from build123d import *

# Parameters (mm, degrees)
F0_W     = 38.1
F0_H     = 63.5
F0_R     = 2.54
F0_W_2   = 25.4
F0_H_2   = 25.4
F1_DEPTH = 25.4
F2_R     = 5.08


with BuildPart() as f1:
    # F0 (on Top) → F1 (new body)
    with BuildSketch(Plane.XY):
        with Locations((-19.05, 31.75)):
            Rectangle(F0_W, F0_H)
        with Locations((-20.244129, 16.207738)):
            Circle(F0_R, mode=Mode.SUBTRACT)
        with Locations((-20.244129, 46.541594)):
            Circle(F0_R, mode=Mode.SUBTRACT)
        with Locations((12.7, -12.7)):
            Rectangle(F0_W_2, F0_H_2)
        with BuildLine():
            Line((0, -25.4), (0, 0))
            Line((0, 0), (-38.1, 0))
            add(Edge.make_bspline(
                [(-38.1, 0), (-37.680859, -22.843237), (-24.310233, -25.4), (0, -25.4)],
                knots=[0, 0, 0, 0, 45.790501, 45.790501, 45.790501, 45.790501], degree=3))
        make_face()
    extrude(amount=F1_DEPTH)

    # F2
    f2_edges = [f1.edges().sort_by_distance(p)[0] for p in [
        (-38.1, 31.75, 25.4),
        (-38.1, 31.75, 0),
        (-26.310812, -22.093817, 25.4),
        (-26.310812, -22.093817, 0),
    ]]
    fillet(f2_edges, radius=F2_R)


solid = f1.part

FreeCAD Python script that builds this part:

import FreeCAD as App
import Part
import Sketcher

V = App.Vector
Q = App.Units.Quantity


def edges_at(feature, points):
    """Names of the edges that pass closest to the given points."""
    edges = feature.Shape.Edges
    near = lambda p: min(range(len(edges)), key=lambda i: edges[i].distToShape(Part.Vertex(*p))[0])
    return sorted({f"Edge{near(p) + 1}" for p in points})

doc = App.newDocument("Part")
params = doc.addObject("Spreadsheet::Sheet", "Params")
for row, (alias, value) in enumerate([
    ("sketch1_diameter", "0.2 in"),
    ("sketch1_height", "2.5 in"),
    ("pad1_length", "1 in"),
    ("fillet_radius", "0.2 in"),
], start=1):
    params.set(f"A{row}", alias)
    params.set(f"B{row}", "=" + value)
    params.setAlias(f"B{row}", alias)

body = doc.addObject("PartDesign::Body", "Body")

# Sketch on XY plane
sketch1 = body.newObject("Sketcher::SketchObject", "Sketch")
sketch1.AttachmentSupport = (doc.getObject("XY_Plane"), [""])
sketch1.MapMode = "FlatFace"
sketch1.addGeometry([
    Part.LineSegment(V(-38.1, 63.5, 0), V(-38.1, 0, 0)),  # 0
    Part.BSplineCurve([V(-38.1, 0, 0), V(-37.680859, -22.843237, 0), V(-24.310233, -25.4, 0), V(0, -25.4, 0)], [4, 4], [0, 45.790501], False, 3, [1, 1, 1, 1], False),  # 1
    Part.LineSegment(V(0, -25.4, 0), V(25.4, -25.4, 0)),  # 2
    Part.LineSegment(V(25.4, -25.4, 0), V(25.4, 0, 0)),  # 3
    Part.LineSegment(V(25.4, 0, 0), V(0, 0, 0)),  # 4
    Part.LineSegment(V(0, 0, 0), V(0, 63.5, 0)),  # 5
    Part.LineSegment(V(0, 63.5, 0), V(-38.1, 63.5, 0)),  # 6
    Part.Circle(V(-20.244129, 16.207738, 0), V(0, 0, 1), 2.54),  # 7
    Part.Circle(V(-20.244129, 46.541594, 0), V(0, 0, 1), 2.54),  # 8
], False)
sketch1.addConstraint([
    Sketcher.Constraint("Block", 1),
    Sketcher.Constraint("Coincident", 0, 2, 1, 1),
    Sketcher.Constraint("Coincident", 1, 2, 2, 1),
    Sketcher.Constraint("Coincident", 2, 2, 3, 1),
    Sketcher.Constraint("Coincident", 3, 2, 4, 1),
    Sketcher.Constraint("Coincident", 4, 2, 5, 1),
    Sketcher.Constraint("Coincident", 5, 2, 6, 1),
    Sketcher.Constraint("Coincident", 6, 2, 0, 1),
    Sketcher.Constraint("Vertical", 0),
    Sketcher.Constraint("Horizontal", 2),
    Sketcher.Constraint("Vertical", 3),
    Sketcher.Constraint("Horizontal", 4),
    Sketcher.Constraint("Vertical", 5),
    Sketcher.Constraint("Horizontal", 6),
    Sketcher.Constraint("Coincident", 4, 2, -1, 1),
    Sketcher.Constraint("Equal", 7, 8),
    Sketcher.Constraint("Vertical", 7, 3, 8, 3),
    Sketcher.Constraint("Equal", 4, 3),
    Sketcher.Constraint("Diameter", 7, Q("0.2 in")),
    Sketcher.Constraint("DistanceY", 0, 2, 0, 1, Q("2.5 in")),
    Sketcher.Constraint("DistanceY", -1, 1, 7, 3, Q("0.6380999 in")),
    Sketcher.Constraint("DistanceX", 7, 3, -1, 1, 20.244129),
    Sketcher.Constraint("DistanceY", -1, 1, 8, 3, 46.541594),
])
sketch1.setExpression("Constraints[18]", "Params.sketch1_diameter")
sketch1.setExpression("Constraints[19]", "Params.sketch1_height")
pad1 = body.newObject("PartDesign::Pad", "Pad")
pad1.Profile = sketch1
pad1.setExpression("Length", "Params.pad1_length")
doc.recompute()

fillet = body.newObject("PartDesign::Fillet", "Fillet")
fillet.Base = (pad1, edges_at(pad1, [
    (-38.1, 31.75, 25.4),
    (-38.1, 31.75, 0),
    (-26.311, -22.094, 25.4),
    (-26.311, -22.094, 0),
]))
fillet.setExpression("Radius", "Params.fillet_radius")

doc.recompute()
